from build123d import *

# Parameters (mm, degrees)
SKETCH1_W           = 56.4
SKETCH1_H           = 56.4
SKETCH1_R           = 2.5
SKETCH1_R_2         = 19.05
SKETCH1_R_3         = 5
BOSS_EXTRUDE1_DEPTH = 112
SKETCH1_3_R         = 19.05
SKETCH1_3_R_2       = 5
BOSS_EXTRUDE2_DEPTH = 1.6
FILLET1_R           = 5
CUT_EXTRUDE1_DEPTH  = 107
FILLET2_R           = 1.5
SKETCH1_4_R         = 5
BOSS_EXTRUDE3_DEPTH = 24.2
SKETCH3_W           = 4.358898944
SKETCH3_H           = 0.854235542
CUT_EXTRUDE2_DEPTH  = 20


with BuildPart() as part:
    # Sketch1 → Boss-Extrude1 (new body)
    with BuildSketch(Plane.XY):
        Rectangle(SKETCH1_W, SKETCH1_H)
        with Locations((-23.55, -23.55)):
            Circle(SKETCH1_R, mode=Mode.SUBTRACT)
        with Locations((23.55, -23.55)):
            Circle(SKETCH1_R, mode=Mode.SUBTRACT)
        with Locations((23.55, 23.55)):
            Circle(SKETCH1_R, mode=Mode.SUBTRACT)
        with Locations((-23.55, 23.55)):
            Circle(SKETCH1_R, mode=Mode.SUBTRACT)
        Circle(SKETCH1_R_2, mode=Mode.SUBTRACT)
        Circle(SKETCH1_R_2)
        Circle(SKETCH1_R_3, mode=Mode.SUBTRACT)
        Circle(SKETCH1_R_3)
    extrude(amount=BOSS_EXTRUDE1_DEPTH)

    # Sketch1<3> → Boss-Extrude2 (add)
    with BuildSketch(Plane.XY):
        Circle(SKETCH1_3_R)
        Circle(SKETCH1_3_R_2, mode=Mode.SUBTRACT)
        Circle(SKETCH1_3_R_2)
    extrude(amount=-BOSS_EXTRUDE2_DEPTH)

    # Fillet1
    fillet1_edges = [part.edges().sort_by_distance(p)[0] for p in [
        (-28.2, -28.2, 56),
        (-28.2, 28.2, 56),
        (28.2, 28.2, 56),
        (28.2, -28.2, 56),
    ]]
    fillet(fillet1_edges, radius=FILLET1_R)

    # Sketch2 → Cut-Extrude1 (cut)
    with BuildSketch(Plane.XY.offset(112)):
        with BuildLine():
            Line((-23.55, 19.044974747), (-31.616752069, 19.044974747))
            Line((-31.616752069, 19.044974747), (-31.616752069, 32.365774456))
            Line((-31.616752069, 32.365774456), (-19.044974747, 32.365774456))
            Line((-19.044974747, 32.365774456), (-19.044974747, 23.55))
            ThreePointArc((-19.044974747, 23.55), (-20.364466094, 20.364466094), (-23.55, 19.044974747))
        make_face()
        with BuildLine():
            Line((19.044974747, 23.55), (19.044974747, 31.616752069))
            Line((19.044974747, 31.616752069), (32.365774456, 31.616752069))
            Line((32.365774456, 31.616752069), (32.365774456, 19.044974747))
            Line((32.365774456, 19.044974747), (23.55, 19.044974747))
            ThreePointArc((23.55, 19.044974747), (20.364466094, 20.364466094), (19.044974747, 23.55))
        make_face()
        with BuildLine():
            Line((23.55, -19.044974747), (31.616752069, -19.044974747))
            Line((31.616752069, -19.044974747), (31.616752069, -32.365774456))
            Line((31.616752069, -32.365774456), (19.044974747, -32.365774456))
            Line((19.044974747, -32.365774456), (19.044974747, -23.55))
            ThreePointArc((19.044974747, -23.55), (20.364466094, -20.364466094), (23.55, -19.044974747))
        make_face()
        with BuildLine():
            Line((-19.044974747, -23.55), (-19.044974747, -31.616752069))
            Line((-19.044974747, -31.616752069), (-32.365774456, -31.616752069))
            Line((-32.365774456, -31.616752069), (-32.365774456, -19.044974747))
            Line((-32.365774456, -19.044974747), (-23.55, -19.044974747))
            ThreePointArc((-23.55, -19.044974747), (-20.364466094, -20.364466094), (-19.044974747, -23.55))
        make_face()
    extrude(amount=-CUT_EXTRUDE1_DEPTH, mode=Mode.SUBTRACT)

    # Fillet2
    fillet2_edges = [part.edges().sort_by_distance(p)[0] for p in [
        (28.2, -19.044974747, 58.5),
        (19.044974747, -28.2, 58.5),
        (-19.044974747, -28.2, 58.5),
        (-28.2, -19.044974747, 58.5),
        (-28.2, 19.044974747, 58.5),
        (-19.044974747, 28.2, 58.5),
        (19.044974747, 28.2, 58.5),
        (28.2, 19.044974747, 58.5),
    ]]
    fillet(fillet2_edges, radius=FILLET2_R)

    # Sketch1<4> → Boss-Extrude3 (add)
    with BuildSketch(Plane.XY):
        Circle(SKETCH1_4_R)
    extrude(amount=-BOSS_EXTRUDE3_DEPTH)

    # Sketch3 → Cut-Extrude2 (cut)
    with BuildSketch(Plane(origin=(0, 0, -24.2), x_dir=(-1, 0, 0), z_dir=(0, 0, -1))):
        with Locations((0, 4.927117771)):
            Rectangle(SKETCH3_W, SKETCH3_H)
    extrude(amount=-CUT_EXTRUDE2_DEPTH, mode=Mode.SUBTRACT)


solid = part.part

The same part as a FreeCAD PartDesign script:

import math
import FreeCAD as App
import Part
import Sketcher

V = App.Vector


def edges_at(feature, points):
    """Names of the edges that pass closest to the given points."""
    edges = feature.Shape.Edges
    near = lambda p: min(range(len(edges)), key=lambda i: edges[i].distToShape(Part.Vertex(*p))[0])
    return sorted({f"Edge{near(p) + 1}" for p in points})

doc = App.newDocument("Part")
params = doc.addObject("Spreadsheet::Sheet", "Params")
for row, (alias, value) in enumerate([
    ("sketch1_diameter", "5 mm"),
    ("sketch1_width", "56.4 mm"),
    ("pad1_length", "112 mm"),
    ("sketch2_diameter", "38.1 mm"),
    ("pad2_length", "1.6 mm"),
    ("fillet_radius", "5 mm"),
    ("pocket1_length", "107 mm"),
    ("fillet2_radius", "1.5 mm"),
    ("sketch4_diameter", "10 mm"),
    ("pad3_length", "24.2 mm"),
    ("pocket2_length", "20 mm"),
], start=1):
    params.set(f"A{row}", alias)
    params.set(f"B{row}", "=" + value)
    params.setAlias(f"B{row}", alias)

body = doc.addObject("PartDesign::Body", "Body")

sketch1 = doc.addObject("Sketcher::SketchObject", "Sketch")
body.addObject(sketch1)
sketch1.AttachmentSupport = (doc.XY_Plane, [""])
sketch1.MapMode = "FlatFace"
sketch1.addGeometry([
    Part.LineSegment(V(-28.2, 28.2, 0), V(-28.2, -28.2, 0)),
    Part.LineSegment(V(-28.2, -28.2, 0), V(28.2, -28.2, 0)),
    Part.LineSegment(V(28.2, -28.2, 0), V(28.2, 28.2, 0)),
    Part.LineSegment(V(28.2, 28.2, 0), V(-28.2, 28.2, 0)),
    Part.Circle(V(-23.6, -23.6, 0), V(0, 0, 1), 2.5),
    Part.Circle(V(23.6, -23.6, 0), V(0, 0, 1), 2.5),
    Part.Circle(V(-23.6, 23.6, 0), V(0, 0, 1), 2.5),
    Part.Circle(V(23.6, 23.6, 0), V(0, 0, 1), 2.5),
], False)
sketch1.addConstraint([
    Sketcher.Constraint("Coincident", 0, 2, 1, 1),
    Sketcher.Constraint("Coincident", 1, 2, 2, 1),
    Sketcher.Constraint("Coincident", 2, 2, 3, 1),
    Sketcher.Constraint("Coincident", 3, 2, 0, 1),
    Sketcher.Constraint("Vertical", 0),
    Sketcher.Constraint("Horizontal", 1),
    Sketcher.Constraint("Vertical", 2),
    Sketcher.Constraint("Horizontal", 3),
    Sketcher.Constraint("Equal", 4, 5),
    Sketcher.Constraint("Equal", 5, 6),
    Sketcher.Constraint("Equal", 6, 7),
    Sketcher.Constraint("Symmetric", 5, 3, 6, 3, -1, 1),
    Sketcher.Constraint("Symmetric", 4, 3, 7, 3, -1, 1),
    Sketcher.Constraint("Symmetric", 0, 2, 2, 2, -1, 1),
    Sketcher.Constraint("Symmetric", 4, 3, 5, 3, -2),
    Sketcher.Constraint("Equal", 3, 0),
    Sketcher.Constraint("Diameter", 4, 5.0),
    Sketcher.Constraint("DistanceX", 1, 1, 1, 2, 56.4),
    Sketcher.Constraint("DistanceX", 4, 3, 5, 3, 47.1),
    Sketcher.Constraint("DistanceY", 4, 3, 6, 3, 47.1),
])
sketch1.setExpression("Constraints[16]", "Params.sketch1_diameter")
sketch1.setExpression("Constraints[17]", "Params.sketch1_width")
pad1 = doc.addObject("PartDesign::Pad", "Pad")
body.addObject(pad1)
pad1.Profile = sketch1
pad1.setExpression("Length", "Params.pad1_length")

sketch2 = doc.addObject("Sketcher::SketchObject", "Sketch001")
body.addObject(sketch2)
sketch2.AttachmentSupport = (doc.XY_Plane, [""])
sketch2.MapMode = "FlatFace"
sketch2.addGeometry(Part.Circle(V(0, 0, 0), V(0, 0, 1), 19), False)
sketch2.addConstraint([
    Sketcher.Constraint("Coincident", 0, 3, -1, 1),
    Sketcher.Constraint("Diameter", 0, 38.1),
])
sketch2.setExpression("Constraints[1]", "Params.sketch2_diameter")
pad2 = doc.addObject("PartDesign::Pad", "Pad001")
body.addObject(pad2)
pad2.Profile = sketch2
pad2.setExpression("Length", "Params.pad2_length")
pad2.Reversed = True
doc.recompute()

fillet = doc.addObject("PartDesign::Fillet", "Fillet")
body.addObject(fillet)
fillet.Base = (pad2, edges_at(pad2, [
    (-28.2, -28.2, 56),
    (-28.2, 28.2, 56),
    (28.2, 28.2, 56),
    (28.2, -28.2, 56),
]))
fillet.setExpression("Radius", "Params.fillet_radius")

sketch3 = doc.addObject("Sketcher::SketchObject", "Sketch002")
body.addObject(sketch3)
sketch3.AttachmentSupport = (doc.XY_Plane, [""])
sketch3.MapMode = "FlatFace"
sketch3.AttachmentOffset = App.Placement(V(0, 0, 112), App.Rotation())
sketch3.addGeometry([
    Part.LineSegment(V(-31.6, 19, 0), V(-23.6, 19, 0)),
    Part.ArcOfCircle(Part.Circle(V(-23.5, 23.5, 0), V(0, 0, 1), 4.5), math.radians(-90), math.radians(0)),
    Part.LineSegment(V(-19, 23.6, 0), V(-19, 32.4, 0)),
    Part.LineSegment(V(-19, 32.4, 0), V(-31.6, 32.4, 0)),
    Part.LineSegment(V(-31.6, 32.4, 0), V(-31.6, 19, 0)),
    Part.LineSegment(V(19, 31.6, 0), V(19, 23.6, 0)),
    Part.ArcOfCircle(Part.Circle(V(23.5, 23.5, 0), V(0, 0, 1), 4.5), math.radians(180), math.radians(270)),
    Part.LineSegment(V(23.6, 19, 0), V(32.4, 19, 0)),
    Part.LineSegment(V(32.4, 19, 0), V(32.4, 31.6, 0)),
    Part.LineSegment(V(32.4, 31.6, 0), V(19, 31.6, 0)),
    Part.LineSegment(V(31.6, -19, 0), V(23.6, -19, 0)),
    Part.ArcOfCircle(Part.Circle(V(23.5, -23.5, 0), V(0, 0, 1), 4.5), math.radians(90), math.radians(180)),
    Part.LineSegment(V(19, -23.6, 0), V(19, -32.4, 0)),
    Part.LineSegment(V(19, -32.4, 0), V(31.6, -32.4, 0)),
    Part.LineSegment(V(31.6, -32.4, 0), V(31.6, -19, 0)),
    Part.LineSegment(V(-19, -31.6, 0), V(-19, -23.6, 0)),
    Part.ArcOfCircle(Part.Circle(V(-23.5, -23.5, 0), V(0, 0, 1), 4.5), math.radians(0), math.radians(90)),
    Part.LineSegment(V(-23.6, -19, 0), V(-32.4, -19, 0)),
    Part.LineSegment(V(-32.4, -19, 0), V(-32.4, -31.6, 0)),
    Part.LineSegment(V(-32.4, -31.6, 0), V(-19, -31.6, 0)),
], False)
sketch3.addConstraint([
    Sketcher.Constraint("Tangent", 0, 2, 1, 1),
    Sketcher.Constraint("Tangent", 1, 2, 2, 1),
    Sketcher.Constraint("Coincident", 2, 2, 3, 1),
    Sketcher.Constraint("Coincident", 3, 2, 4, 1),
    Sketcher.Constraint("Coincident", 4, 2, 0, 1),
    Sketcher.Constraint("Tangent", 5, 2, 6, 1),
    Sketcher.Constraint("Tangent", 6, 2, 7, 1),
    Sketcher.Constraint("Coincident", 7, 2, 8, 1),
    Sketcher.Constraint("Coincident", 8, 2, 9, 1),
    Sketcher.Constraint("Coincident", 9, 2, 5, 1),
    Sketcher.Constraint("Tangent", 10, 2, 11, 1),
    Sketcher.Constraint("Tangent", 11, 2, 12, 1),
    Sketcher.Constraint("Coincident", 12, 2, 13, 1),
    Sketcher.Constraint("Coincident", 13, 2, 14, 1),
    Sketcher.Constraint("Coincident", 14, 2, 10, 1),
    Sketcher.Constraint("Tangent", 15, 2, 16, 1),
    Sketcher.Constraint("Tangent", 16, 2, 17, 1),
    Sketcher.Constraint("Coincident", 17, 2, 18, 1),
    Sketcher.Constraint("Coincident", 18, 2, 19, 1),
    Sketcher.Constraint("Coincident", 19, 2, 15, 1),
    Sketcher.Constraint("Horizontal", 0),
    Sketcher.Constraint("Vertical", 2),
    Sketcher.Constraint("Horizontal", 3),
    Sketcher.Constraint("Vertical", 4),
    Sketcher.Constraint("Vertical", 5),
    Sketcher.Constraint("Horizontal", 7),
    Sketcher.Constraint("Vertical", 8),
    Sketcher.Constraint("Horizontal", 9),
    Sketcher.Constraint("Horizontal", 10),
    Sketcher.Constraint("Vertical", 12),
    Sketcher.Constraint("Horizontal", 13),
    Sketcher.Constraint("Vertical", 14),
    Sketcher.Constraint("Vertical", 15),
    Sketcher.Constraint("Horizontal", 17),
    Sketcher.Constraint("Vertical", 18),
    Sketcher.Constraint("Horizontal", 19),
    Sketcher.Constraint("Equal", 1, 6),
    Sketcher.Constraint("Equal", 6, 11),
    Sketcher.Constraint("Equal", 11, 16),
    Sketcher.Constraint("Symmetric", 1, 3, 11, 3, -1, 1),
    Sketcher.Constraint("Symmetric", 6, 3, 16, 3, -1, 1),
    Sketcher.Constraint("Symmetric", 3, 2, 13, 2, -1, 1),
    Sketcher.Constraint("Symmetric", 8, 2, 18, 2, -1, 1),
    Sketcher.Constraint("Symmetric", 1, 3, 6, 3, -2),
    Sketcher.Constraint("Equal", 17, 2),
    Sketcher.Constraint("Equal", 10, 5),
    Sketcher.Constraint("DistanceX", 1, 3, 6, 3, 47.1),
    Sketcher.Constraint("DistanceY", 11, 3, 6, 3, 47.1),
    Sketcher.Constraint("DistanceX", 9, 2, 9, 1, 13.3208),
    Sketcher.Constraint("Radius", 1, 4.505025),
    Sketcher.Constraint("DistanceX", 0, 1, 0, 2, 8.066752),
])
pocket1 = doc.addObject("PartDesign::Pocket", "Pocket")
body.addObject(pocket1)
pocket1.Profile = sketch3
pocket1.setExpression("Length", "Params.pocket1_length")
doc.recompute()

fillet2 = doc.addObject("PartDesign::Fillet", "Fillet001")
body.addObject(fillet2)
fillet2.Base = (pocket1, edges_at(pocket1, [
    (28.2, -19.045, 58.5),
    (19.045, -28.2, 58.5),
    (-19.045, -28.2, 58.5),
    (-28.2, -19.045, 58.5),
    (-28.2, 19.045, 58.5),
    (-19.045, 28.2, 58.5),
    (19.045, 28.2, 58.5),
    (28.2, 19.045, 58.5),
]))
fillet2.setExpression("Radius", "Params.fillet2_radius")

sketch4 = doc.addObject("Sketcher::SketchObject", "Sketch003")
body.addObject(sketch4)
sketch4.AttachmentSupport = (doc.XY_Plane, [""])
sketch4.MapMode = "FlatFace"
sketch4.addGeometry(Part.Circle(V(0, 0, 0), V(0, 0, 1), 5), False)
sketch4.addConstraint([
    Sketcher.Constraint("Coincident", 0, 3, -1, 1),
    Sketcher.Constraint("Diameter", 0, 10.0),
])
sketch4.setExpression("Constraints[1]", "Params.sketch4_diameter")
pad3 = doc.addObject("PartDesign::Pad", "Pad002")
body.addObject(pad3)
pad3.Profile = sketch4
pad3.setExpression("Length", "Params.pad3_length")
pad3.Reversed = True

sketch5 = doc.addObject("Sketcher::SketchObject", "Sketch004")
body.addObject(sketch5)
sketch5.AttachmentSupport = (doc.XY_Plane, [""])
sketch5.MapMode = "FlatFace"
sketch5.AttachmentOffset = App.Placement(V(0, 0, -24.2), App.Rotation())
sketch5.addGeometry([
    Part.LineSegment(V(2.2, 5.4, 0), V(2.2, 4.5, 0)),
    Part.LineSegment(V(2.2, 4.5, 0), V(-2.2, 4.5, 0)),
    Part.LineSegment(V(-2.2, 4.5, 0), V(-2.2, 5.4, 0)),
    Part.LineSegment(V(-2.2, 5.4, 0), V(2.2, 5.4, 0)),
], False)
sketch5.addConstraint([
    Sketcher.Constraint("Coincident", 0, 2, 1, 1),
    Sketcher.Constraint("Coincident", 1, 2, 2, 1),
    Sketcher.Constraint("Coincident", 2, 2, 3, 1),
    Sketcher.Constraint("Coincident", 3, 2, 0, 1),
    Sketcher.Constraint("Vertical", 0),
    Sketcher.Constraint("Horizontal", 1),
    Sketcher.Constraint("Vertical", 2),
    Sketcher.Constraint("Horizontal", 3),
    Sketcher.Constraint("DistanceY", -1, 1, 0, 2, 4.5),
    Sketcher.Constraint("DistanceX", 1, 2, 1, 1, 4.358899),
    Sketcher.Constraint("DistanceY", 0, 2, 0, 1, 0.854236),
    Sketcher.Constraint("DistanceX", -1, 1, 0, 2, 2.179449),
])
pocket2 = doc.addObject("PartDesign::Pocket", "Pocket001")
body.addObject(pocket2)
pocket2.Profile = sketch5
pocket2.setExpression("Length", "Params.pocket2_length")
pocket2.Reversed = True

doc.recompute()
